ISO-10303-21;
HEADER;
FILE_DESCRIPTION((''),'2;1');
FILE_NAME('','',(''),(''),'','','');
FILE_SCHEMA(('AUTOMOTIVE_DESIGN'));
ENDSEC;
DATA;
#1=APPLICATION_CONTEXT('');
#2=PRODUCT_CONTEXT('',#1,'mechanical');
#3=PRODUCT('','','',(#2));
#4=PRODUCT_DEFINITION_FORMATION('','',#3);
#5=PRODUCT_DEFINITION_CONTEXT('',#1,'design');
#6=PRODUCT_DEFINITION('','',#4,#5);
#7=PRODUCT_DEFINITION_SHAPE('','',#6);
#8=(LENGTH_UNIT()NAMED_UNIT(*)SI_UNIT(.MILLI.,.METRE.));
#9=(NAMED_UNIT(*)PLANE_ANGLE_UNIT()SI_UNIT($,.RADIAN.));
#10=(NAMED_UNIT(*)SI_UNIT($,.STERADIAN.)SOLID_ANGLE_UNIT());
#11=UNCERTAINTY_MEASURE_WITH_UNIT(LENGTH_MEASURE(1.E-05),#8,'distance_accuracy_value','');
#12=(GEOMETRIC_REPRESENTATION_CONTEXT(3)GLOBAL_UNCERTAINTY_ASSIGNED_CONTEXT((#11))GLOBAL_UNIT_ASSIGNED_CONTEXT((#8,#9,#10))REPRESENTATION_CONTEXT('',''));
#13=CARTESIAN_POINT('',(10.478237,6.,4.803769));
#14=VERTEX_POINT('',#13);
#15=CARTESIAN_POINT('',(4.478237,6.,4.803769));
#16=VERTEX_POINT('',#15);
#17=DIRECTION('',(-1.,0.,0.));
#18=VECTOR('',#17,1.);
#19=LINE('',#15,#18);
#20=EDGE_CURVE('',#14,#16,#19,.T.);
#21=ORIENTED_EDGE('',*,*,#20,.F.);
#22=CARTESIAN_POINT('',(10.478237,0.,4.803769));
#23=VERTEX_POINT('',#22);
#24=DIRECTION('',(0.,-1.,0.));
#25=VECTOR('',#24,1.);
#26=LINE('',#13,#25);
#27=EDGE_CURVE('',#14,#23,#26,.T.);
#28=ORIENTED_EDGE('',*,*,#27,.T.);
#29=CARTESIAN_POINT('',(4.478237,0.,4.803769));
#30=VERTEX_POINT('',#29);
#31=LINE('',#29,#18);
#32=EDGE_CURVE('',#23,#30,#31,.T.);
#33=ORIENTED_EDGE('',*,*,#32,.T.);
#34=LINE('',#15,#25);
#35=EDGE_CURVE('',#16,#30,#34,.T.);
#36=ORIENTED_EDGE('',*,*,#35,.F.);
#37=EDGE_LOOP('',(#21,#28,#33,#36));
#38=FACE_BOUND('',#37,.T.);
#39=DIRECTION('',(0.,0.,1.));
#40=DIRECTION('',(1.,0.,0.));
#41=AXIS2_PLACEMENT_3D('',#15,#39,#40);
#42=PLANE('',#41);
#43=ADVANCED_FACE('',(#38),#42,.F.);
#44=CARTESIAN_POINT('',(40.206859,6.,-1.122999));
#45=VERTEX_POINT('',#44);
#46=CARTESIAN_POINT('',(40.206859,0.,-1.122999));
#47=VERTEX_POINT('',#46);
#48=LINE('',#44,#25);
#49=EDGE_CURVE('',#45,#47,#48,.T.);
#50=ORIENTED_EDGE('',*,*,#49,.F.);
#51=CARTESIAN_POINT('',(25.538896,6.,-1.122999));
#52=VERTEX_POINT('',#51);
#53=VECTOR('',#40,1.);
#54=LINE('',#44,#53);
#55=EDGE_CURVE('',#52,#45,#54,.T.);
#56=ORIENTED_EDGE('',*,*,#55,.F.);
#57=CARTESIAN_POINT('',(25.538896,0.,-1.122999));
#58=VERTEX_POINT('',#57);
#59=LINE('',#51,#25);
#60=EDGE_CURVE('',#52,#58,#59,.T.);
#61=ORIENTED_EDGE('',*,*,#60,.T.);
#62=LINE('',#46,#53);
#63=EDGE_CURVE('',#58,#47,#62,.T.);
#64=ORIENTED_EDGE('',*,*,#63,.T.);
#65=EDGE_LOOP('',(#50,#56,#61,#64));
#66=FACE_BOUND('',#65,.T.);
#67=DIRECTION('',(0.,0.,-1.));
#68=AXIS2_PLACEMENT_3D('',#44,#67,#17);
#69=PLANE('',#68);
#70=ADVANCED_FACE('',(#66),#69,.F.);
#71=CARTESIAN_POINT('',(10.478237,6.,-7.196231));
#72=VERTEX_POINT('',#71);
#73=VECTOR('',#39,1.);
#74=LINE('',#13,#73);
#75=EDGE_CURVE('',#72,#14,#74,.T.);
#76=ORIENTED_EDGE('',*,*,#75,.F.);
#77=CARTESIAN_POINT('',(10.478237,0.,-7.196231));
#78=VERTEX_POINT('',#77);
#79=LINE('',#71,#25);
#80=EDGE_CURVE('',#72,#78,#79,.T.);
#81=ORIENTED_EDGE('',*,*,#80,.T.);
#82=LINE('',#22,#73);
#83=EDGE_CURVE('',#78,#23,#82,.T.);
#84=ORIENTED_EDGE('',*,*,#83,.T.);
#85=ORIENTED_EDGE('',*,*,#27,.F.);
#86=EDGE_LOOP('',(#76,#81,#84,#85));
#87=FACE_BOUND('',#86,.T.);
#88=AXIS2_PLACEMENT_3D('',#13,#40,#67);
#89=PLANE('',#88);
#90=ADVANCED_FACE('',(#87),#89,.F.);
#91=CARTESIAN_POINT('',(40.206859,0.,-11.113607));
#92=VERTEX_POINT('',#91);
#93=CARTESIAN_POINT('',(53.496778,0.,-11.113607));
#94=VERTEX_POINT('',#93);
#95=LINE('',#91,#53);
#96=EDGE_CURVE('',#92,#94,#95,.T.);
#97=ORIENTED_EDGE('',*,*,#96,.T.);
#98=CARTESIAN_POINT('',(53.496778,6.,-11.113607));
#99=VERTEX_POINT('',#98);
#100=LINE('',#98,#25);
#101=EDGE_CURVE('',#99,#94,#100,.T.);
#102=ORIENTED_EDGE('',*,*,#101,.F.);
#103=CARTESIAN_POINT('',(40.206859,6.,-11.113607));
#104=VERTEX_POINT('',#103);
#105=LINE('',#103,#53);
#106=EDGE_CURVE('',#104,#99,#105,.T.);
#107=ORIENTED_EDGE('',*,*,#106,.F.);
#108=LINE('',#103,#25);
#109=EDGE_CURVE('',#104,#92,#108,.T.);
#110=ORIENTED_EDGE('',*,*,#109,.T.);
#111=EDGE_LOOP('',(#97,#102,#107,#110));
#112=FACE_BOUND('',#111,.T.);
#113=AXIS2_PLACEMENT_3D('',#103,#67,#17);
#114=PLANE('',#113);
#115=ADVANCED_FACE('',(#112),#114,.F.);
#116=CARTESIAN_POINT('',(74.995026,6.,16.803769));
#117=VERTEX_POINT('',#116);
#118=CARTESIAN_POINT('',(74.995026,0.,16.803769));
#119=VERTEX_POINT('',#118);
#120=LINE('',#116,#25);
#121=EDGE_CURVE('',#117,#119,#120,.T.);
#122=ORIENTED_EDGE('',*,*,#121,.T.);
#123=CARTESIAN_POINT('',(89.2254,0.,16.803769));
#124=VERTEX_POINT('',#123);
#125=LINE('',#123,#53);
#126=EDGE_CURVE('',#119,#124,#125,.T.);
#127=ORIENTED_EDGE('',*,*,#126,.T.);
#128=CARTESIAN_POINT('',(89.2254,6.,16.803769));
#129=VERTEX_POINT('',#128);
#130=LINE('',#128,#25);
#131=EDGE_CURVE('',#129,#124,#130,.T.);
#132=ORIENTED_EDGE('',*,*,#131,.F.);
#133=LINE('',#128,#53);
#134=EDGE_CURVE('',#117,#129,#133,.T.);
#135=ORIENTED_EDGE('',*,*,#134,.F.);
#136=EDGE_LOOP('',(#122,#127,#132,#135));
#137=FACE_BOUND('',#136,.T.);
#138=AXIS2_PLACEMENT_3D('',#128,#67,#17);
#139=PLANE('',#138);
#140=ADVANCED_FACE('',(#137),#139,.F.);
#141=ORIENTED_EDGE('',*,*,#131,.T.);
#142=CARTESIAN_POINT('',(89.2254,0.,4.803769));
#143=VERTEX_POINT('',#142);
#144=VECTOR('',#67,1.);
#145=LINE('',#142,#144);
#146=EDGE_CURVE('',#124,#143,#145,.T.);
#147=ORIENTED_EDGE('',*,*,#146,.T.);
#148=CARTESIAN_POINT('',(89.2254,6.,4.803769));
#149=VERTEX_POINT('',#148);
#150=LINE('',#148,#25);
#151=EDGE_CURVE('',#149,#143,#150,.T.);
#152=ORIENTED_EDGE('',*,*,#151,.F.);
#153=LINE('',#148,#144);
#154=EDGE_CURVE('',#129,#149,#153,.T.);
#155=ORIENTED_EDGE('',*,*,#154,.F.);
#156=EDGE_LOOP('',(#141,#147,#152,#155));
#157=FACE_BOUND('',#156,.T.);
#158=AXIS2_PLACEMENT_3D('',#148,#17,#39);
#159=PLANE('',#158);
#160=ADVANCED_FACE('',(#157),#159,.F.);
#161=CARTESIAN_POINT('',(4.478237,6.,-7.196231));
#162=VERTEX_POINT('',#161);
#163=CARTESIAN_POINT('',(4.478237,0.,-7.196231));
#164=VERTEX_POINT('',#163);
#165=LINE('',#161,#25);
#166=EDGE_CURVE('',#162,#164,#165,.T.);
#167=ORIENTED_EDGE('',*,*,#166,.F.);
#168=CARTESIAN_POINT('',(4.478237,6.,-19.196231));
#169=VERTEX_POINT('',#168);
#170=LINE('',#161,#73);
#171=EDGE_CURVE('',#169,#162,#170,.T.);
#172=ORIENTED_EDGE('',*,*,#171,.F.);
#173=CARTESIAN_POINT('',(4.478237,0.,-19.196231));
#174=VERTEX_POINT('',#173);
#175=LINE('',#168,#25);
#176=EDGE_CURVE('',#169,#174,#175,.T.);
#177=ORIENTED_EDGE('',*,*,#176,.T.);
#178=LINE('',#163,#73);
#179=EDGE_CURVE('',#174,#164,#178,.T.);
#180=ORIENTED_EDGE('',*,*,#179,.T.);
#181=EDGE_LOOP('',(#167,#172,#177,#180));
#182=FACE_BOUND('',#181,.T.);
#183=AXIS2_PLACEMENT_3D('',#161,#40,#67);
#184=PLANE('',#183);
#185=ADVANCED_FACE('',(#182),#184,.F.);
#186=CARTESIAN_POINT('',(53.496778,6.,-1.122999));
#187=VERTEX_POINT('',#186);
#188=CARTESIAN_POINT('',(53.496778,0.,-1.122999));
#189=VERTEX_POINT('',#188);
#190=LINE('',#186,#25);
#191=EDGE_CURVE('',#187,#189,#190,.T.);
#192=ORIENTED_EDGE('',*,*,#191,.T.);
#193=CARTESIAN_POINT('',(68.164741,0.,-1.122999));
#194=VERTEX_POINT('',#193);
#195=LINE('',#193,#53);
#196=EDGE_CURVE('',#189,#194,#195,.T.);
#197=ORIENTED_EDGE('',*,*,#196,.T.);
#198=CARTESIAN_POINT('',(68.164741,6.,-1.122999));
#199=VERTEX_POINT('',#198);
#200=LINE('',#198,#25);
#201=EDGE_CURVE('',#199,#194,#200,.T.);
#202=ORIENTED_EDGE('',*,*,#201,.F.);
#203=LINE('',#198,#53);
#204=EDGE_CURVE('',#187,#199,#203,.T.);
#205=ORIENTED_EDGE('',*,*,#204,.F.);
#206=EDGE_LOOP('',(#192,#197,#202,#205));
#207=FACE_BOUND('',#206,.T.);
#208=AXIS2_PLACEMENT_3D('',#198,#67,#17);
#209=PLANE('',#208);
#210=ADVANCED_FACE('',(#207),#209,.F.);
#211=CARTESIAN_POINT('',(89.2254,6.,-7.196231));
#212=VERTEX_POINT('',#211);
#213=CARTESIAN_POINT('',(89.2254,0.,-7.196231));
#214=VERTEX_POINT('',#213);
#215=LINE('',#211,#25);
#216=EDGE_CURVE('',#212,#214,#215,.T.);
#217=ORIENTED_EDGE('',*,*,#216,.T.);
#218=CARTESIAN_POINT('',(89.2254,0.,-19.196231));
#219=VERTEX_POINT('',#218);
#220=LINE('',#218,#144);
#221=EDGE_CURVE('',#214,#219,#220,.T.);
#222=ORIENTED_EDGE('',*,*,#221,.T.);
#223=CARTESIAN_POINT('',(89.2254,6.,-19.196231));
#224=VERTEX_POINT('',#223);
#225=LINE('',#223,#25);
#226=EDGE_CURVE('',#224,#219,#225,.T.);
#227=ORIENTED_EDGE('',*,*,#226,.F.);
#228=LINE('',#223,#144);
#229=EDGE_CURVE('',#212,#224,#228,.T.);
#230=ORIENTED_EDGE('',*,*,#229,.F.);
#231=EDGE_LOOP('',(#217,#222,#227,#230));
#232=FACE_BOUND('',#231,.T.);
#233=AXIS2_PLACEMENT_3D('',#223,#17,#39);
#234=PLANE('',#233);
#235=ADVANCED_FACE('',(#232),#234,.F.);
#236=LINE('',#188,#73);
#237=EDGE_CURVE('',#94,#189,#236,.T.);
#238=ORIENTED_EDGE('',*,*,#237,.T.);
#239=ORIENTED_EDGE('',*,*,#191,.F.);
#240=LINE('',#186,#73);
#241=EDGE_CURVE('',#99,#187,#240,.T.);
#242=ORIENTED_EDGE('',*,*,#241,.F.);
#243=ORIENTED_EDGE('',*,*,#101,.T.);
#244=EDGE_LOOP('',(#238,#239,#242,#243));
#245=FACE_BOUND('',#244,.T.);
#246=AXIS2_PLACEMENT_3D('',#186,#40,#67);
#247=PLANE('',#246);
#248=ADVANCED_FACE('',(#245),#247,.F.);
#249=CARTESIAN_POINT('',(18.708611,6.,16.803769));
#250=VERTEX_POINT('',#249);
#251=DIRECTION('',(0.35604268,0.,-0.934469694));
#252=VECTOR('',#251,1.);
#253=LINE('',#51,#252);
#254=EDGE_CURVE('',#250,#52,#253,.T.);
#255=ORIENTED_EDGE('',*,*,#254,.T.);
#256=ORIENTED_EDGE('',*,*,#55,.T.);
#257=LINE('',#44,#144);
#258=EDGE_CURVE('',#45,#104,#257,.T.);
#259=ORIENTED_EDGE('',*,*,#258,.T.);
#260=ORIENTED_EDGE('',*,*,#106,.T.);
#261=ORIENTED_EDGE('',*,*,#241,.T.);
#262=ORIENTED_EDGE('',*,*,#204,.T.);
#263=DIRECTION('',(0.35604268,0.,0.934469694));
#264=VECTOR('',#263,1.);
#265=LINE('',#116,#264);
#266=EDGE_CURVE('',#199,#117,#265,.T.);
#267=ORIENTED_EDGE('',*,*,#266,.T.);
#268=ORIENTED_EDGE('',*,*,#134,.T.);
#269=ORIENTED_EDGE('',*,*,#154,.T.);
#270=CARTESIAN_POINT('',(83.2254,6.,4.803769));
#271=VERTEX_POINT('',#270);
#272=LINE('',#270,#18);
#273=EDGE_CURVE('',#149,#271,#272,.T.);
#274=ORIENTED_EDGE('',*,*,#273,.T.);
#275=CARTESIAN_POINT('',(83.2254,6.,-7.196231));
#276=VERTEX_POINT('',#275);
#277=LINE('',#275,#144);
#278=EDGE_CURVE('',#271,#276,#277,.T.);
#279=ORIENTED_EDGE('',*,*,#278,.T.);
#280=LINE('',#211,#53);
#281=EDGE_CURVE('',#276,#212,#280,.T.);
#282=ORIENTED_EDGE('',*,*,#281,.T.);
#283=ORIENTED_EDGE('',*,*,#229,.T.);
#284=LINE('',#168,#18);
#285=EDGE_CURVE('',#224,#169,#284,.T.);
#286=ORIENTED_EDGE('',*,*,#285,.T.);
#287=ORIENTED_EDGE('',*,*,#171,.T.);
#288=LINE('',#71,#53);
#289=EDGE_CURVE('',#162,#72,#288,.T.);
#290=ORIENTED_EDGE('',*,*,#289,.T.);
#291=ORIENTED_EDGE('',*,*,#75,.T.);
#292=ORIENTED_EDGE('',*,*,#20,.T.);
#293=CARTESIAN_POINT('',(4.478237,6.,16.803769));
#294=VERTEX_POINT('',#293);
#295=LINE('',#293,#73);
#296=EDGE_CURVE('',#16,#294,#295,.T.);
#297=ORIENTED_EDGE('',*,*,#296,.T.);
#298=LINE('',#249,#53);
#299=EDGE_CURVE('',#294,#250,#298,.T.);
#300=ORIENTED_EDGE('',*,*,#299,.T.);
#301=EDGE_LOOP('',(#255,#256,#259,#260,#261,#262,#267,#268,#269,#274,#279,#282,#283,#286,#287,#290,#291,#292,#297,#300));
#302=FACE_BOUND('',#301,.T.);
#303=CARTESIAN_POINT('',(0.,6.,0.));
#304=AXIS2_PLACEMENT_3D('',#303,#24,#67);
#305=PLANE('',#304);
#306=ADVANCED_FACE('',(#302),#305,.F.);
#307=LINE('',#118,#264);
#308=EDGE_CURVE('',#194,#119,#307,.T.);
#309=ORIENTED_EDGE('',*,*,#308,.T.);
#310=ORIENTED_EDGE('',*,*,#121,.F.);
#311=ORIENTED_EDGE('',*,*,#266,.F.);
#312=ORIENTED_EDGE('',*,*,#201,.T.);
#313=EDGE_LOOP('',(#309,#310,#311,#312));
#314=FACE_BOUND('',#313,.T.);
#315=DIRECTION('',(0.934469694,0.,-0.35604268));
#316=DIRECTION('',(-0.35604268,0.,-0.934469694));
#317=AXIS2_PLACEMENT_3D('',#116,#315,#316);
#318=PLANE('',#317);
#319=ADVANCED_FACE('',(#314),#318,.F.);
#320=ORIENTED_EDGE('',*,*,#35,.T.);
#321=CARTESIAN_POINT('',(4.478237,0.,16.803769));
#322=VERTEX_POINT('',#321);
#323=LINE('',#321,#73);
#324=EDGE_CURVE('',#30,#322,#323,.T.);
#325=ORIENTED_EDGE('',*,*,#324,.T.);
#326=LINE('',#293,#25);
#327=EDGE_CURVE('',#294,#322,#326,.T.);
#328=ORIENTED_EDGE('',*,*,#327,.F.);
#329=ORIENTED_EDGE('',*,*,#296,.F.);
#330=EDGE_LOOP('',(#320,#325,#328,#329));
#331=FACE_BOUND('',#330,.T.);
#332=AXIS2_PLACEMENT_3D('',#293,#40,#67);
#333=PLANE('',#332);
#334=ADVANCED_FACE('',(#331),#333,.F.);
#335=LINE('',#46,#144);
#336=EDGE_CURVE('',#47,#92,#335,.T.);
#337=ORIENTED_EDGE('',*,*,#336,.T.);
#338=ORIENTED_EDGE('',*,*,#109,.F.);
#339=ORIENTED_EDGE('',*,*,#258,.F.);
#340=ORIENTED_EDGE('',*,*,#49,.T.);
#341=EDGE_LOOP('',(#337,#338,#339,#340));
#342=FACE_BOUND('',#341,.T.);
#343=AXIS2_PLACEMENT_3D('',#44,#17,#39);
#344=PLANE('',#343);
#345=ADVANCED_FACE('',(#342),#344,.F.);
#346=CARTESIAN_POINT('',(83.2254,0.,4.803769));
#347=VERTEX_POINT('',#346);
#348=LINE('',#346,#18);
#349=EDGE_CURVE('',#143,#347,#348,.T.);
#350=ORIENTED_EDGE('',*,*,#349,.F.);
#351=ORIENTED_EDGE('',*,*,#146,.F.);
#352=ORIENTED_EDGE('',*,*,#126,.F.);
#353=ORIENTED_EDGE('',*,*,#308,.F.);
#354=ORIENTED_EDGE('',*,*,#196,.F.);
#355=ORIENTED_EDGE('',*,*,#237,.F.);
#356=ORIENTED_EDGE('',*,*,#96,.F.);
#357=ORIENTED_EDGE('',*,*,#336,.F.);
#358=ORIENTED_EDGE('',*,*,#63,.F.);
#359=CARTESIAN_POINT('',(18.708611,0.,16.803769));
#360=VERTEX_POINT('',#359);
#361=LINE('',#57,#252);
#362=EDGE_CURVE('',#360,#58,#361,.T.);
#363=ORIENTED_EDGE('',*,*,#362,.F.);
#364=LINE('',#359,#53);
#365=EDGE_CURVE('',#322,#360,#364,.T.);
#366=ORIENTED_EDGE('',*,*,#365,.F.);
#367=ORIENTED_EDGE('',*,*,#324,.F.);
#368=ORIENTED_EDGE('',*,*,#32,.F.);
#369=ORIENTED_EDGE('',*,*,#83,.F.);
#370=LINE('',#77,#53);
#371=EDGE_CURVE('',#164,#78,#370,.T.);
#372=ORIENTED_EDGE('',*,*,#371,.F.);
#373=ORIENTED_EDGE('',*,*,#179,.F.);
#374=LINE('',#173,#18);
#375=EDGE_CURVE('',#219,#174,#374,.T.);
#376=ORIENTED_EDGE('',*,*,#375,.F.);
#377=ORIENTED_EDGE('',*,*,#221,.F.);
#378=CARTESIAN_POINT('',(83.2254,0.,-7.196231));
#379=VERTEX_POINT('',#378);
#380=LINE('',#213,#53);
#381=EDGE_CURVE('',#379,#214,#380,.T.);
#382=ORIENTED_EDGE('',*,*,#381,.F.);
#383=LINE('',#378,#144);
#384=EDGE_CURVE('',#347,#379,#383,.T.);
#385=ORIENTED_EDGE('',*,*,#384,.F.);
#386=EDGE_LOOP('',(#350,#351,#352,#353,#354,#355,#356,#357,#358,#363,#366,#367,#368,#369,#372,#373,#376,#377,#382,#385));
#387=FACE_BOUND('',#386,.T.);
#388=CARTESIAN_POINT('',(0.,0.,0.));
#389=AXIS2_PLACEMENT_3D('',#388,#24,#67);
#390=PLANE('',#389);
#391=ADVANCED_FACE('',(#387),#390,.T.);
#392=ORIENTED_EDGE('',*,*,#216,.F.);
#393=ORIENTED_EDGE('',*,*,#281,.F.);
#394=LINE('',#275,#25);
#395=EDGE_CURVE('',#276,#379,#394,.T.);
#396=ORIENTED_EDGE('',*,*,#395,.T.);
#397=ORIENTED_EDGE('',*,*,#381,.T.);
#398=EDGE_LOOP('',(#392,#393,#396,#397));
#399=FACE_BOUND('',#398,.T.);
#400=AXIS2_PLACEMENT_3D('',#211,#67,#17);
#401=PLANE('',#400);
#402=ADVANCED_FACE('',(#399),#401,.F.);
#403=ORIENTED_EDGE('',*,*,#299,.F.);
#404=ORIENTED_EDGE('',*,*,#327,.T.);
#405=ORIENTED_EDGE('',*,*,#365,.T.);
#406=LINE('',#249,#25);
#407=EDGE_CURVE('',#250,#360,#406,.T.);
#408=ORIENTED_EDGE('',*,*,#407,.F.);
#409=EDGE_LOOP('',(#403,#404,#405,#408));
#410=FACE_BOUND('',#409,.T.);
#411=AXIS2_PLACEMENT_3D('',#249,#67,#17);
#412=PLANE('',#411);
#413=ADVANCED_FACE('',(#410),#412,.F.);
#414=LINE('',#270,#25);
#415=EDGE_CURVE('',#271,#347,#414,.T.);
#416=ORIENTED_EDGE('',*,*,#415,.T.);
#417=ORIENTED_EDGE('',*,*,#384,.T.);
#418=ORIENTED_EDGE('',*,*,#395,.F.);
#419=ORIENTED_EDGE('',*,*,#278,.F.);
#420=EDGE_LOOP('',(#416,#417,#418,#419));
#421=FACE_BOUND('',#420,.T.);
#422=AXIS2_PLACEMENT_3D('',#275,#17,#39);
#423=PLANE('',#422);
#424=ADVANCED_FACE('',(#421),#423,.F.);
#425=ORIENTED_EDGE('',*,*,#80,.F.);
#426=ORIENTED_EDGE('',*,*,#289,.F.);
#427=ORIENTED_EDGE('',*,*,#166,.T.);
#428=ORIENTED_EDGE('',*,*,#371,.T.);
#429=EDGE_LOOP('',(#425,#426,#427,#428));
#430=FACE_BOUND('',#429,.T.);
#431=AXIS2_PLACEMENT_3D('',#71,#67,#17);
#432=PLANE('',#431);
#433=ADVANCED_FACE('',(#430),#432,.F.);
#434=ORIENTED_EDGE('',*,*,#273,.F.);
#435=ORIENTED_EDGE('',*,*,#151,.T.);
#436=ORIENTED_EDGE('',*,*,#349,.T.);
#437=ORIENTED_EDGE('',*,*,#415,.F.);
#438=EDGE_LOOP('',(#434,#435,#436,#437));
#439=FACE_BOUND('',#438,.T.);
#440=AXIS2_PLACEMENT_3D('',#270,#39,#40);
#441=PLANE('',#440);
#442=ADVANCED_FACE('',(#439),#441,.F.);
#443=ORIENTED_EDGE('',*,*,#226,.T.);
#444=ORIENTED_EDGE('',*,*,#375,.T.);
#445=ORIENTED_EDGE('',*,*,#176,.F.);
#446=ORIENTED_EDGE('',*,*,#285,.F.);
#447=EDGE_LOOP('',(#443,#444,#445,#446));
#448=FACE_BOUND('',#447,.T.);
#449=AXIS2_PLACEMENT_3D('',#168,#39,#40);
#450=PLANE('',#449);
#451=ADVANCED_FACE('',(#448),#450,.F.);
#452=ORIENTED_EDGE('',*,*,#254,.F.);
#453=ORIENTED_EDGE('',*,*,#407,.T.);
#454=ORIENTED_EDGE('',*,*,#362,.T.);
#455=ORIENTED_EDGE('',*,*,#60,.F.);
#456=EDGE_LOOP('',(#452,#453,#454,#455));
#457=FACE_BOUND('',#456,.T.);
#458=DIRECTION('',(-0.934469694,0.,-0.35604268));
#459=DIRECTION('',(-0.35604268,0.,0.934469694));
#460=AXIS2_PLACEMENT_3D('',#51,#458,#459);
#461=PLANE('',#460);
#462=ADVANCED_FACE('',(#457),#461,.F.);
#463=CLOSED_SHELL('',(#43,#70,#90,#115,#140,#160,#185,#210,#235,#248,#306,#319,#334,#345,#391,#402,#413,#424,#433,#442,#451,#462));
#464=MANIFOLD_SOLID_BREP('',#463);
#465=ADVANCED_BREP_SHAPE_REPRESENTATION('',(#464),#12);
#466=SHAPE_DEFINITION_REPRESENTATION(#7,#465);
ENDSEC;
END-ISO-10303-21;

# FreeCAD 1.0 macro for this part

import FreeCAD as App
import Part
import Sketcher
from FreeCAD import Vector
Q = App.Units.Quantity


def add_polygon(sketch, points):
    """Adds a closed chain of lines whose ends are joined by coincident constraints."""
    first, n = sketch.GeometryCount, len(points)
    for a, b in zip(points, points[1:] + points[:1]):
        sketch.addGeometry(Part.LineSegment(App.Vector(*a, 0), App.Vector(*b, 0)), False)
    for i in range(n):
        sketch.addConstraint(Sketcher.Constraint("Coincident", first + i, 2, first + (i + 1) % n, 1))

doc = App.newDocument("Part")
body = doc.addObject("PartDesign::Body", "Body")

# Sketch on XZ plane
sketch1 = body.newObject("Sketcher::SketchObject", "Sketch")
sketch1.AttachmentSupport = (doc.getObject("XZ_Plane"), [""])
sketch1.MapMode = "FlatFace"
add_polygon(sketch1, [(4, 17), (19, 17), (26, -1), (40, -1), (40, -11), (53, -11), (53, -1), (68, -1), (75, 17), (89, 17), (89, 5), (83, 5), (83, -7), (89, -7), (89, -19), (4, -19), (4, -7), (10, -7), (10, 5), (4, 5)])  # lines 0-19
sketch1.addConstraint(Sketcher.Constraint("Horizontal", 0))
sketch1.addConstraint(Sketcher.Constraint("Horizontal", 2))
sketch1.addConstraint(Sketcher.Constraint("Vertical", 3))
sketch1.addConstraint(Sketcher.Constraint("Horizontal", 4))
sketch1.addConstraint(Sketcher.Constraint("Vertical", 5))
sketch1.addConstraint(Sketcher.Constraint("Horizontal", 6))
sketch1.addConstraint(Sketcher.Constraint("Horizontal", 8))
sketch1.addConstraint(Sketcher.Constraint("Vertical", 9))
sketch1.addConstraint(Sketcher.Constraint("Horizontal", 10))
sketch1.addConstraint(Sketcher.Constraint("Vertical", 11))
sketch1.addConstraint(Sketcher.Constraint("Horizontal", 12))
sketch1.addConstraint(Sketcher.Constraint("Vertical", 13))
sketch1.addConstraint(Sketcher.Constraint("Horizontal", 14))
sketch1.addConstraint(Sketcher.Constraint("Vertical", 15))
sketch1.addConstraint(Sketcher.Constraint("Horizontal", 16))
sketch1.addConstraint(Sketcher.Constraint("Vertical", 17))
sketch1.addConstraint(Sketcher.Constraint("Horizontal", 18))
sketch1.addConstraint(Sketcher.Constraint("Vertical", 19))
sketch1.addConstraint(Sketcher.Constraint("Horizontal", 2, 2, 5, 2))
sketch1.addConstraint(Sketcher.Constraint("Horizontal", 0, 2, 7, 2))
sketch1.addConstraint(Sketcher.Constraint("Horizontal", 12, 2, 15, 2))
sketch1.addConstraint(Sketcher.Constraint("Horizontal", 10, 2, 17, 2))
sketch1.addConstraint(Sketcher.Constraint("Vertical", 9, 2, 12, 2))
sketch1.addConstraint(Sketcher.Constraint("Vertical", 15, 2, 18, 2))
sketch1.addConstraint(Sketcher.Constraint("Equal", 2, 6))
sketch1.addConstraint(Sketcher.Constraint("Equal", 0, 8))
sketch1.addConstraint(Sketcher.Constraint("Equal", 12, 16))
sketch1.addConstraint(Sketcher.Constraint("Equal", 9, 11))
sketch1.addConstraint(Sketcher.Constraint("Equal", 11, 13))
sketch1.addConstraint(Sketcher.Constraint("Equal", 1, 7))
sketch1.addConstraint(Sketcher.Constraint("DistanceX", 10, 2, 10, 1, Q("6 mm")))
sketch1.addConstraint(Sketcher.Constraint("DistanceY", 9, 2, 9, 1, Q("12 mm")))
sketch1.addConstraint(Sketcher.Constraint("DistanceY", 1, 2, -1, 1, Q("1.122999 mm")))
sketch1.addConstraint(Sketcher.Constraint("DistanceX", 4, 1, 4, 2, Q("13.289919 mm")))
sketch1.addConstraint(Sketcher.Constraint("DistanceY", 3, 2, 3, 1, Q("9.990608 mm")))
sketch1.addConstraint(Sketcher.Constraint("DistanceX", -1, 1, 8, 2, Q("89.2254 mm")))
sketch1.addConstraint(Sketcher.Constraint("DistanceX", 0, 1, 0, 2, Q("14.230374 mm")))
sketch1.addConstraint(Sketcher.Constraint("DistanceX", 2, 1, 2, 2, Q("14.667963 mm")))
sketch1.addConstraint(Sketcher.Constraint("DistanceX", 14, 2, 14, 1, Q("84.747163 mm")))
sketch1.addConstraint(Sketcher.Constraint("DistanceY", -1, 1, 0, 2, Q("16.803769 mm")))
pad1 = body.newObject("PartDesign::Pad", "Pad")
pad1.Profile = sketch1
pad1.Length = 6
pad1.Reversed = True

doc.recompute()
